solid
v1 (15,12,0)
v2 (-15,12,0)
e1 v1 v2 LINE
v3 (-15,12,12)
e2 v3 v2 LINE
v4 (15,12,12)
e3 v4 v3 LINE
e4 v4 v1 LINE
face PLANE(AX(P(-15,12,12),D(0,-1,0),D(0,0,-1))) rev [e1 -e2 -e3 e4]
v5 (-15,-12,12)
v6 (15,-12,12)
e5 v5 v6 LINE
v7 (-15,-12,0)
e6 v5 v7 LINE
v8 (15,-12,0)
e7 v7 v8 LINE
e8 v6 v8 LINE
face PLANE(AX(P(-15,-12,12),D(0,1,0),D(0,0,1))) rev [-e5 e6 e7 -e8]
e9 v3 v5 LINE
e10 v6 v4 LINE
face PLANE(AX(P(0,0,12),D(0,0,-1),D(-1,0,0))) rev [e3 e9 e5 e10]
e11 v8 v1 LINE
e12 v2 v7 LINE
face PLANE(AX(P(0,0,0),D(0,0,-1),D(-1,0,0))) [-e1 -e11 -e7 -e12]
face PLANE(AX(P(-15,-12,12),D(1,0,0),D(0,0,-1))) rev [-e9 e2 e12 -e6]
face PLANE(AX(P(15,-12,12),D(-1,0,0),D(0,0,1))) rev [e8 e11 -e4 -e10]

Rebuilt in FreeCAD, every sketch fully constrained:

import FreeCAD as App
import Part
import Sketcher


def add_polygon(sketch, points):
    """Adds a closed chain of lines whose ends are joined by coincident constraints."""
    first, n = sketch.GeometryCount, len(points)
    for a, b in zip(points, points[1:] + points[:1]):
        sketch.addGeometry(Part.LineSegment(App.Vector(*a, 0), App.Vector(*b, 0)), False)
    for i in range(n):
        sketch.addConstraint(Sketcher.Constraint("Coincident", first + i, 2, first + (i + 1) % n, 1))

doc = App.newDocument("Part")
body = doc.addObject("PartDesign::Body", "Body")

sketch1 = body.newObject("Sketcher::SketchObject", "Sketch")
sketch1.AttachmentSupport = (doc.getObject("XY_Plane"), [""])
sketch1.MapMode = "FlatFace"
add_polygon(sketch1, [(-15, 12), (-15, -12), (15, -12), (15, 12)])
sketch1.addConstraint([
    Sketcher.Constraint("Vertical", 0),
    Sketcher.Constraint("Horizontal", 1),
    Sketcher.Constraint("Vertical", 2),
    Sketcher.Constraint("Horizontal", 3),
    Sketcher.Constraint("Symmetric", 0, 2, 2, 2, -1, 1),
    Sketcher.Constraint("DistanceX", 1, 1, 1, 2, 30.0),
    Sketcher.Constraint("DistanceY", 0, 2, 0, 1, 24.0),
])
pad1 = body.newObject("PartDesign::Pad", "Pad")
pad1.Profile = sketch1
pad1.Length = 12

doc.recompute()
